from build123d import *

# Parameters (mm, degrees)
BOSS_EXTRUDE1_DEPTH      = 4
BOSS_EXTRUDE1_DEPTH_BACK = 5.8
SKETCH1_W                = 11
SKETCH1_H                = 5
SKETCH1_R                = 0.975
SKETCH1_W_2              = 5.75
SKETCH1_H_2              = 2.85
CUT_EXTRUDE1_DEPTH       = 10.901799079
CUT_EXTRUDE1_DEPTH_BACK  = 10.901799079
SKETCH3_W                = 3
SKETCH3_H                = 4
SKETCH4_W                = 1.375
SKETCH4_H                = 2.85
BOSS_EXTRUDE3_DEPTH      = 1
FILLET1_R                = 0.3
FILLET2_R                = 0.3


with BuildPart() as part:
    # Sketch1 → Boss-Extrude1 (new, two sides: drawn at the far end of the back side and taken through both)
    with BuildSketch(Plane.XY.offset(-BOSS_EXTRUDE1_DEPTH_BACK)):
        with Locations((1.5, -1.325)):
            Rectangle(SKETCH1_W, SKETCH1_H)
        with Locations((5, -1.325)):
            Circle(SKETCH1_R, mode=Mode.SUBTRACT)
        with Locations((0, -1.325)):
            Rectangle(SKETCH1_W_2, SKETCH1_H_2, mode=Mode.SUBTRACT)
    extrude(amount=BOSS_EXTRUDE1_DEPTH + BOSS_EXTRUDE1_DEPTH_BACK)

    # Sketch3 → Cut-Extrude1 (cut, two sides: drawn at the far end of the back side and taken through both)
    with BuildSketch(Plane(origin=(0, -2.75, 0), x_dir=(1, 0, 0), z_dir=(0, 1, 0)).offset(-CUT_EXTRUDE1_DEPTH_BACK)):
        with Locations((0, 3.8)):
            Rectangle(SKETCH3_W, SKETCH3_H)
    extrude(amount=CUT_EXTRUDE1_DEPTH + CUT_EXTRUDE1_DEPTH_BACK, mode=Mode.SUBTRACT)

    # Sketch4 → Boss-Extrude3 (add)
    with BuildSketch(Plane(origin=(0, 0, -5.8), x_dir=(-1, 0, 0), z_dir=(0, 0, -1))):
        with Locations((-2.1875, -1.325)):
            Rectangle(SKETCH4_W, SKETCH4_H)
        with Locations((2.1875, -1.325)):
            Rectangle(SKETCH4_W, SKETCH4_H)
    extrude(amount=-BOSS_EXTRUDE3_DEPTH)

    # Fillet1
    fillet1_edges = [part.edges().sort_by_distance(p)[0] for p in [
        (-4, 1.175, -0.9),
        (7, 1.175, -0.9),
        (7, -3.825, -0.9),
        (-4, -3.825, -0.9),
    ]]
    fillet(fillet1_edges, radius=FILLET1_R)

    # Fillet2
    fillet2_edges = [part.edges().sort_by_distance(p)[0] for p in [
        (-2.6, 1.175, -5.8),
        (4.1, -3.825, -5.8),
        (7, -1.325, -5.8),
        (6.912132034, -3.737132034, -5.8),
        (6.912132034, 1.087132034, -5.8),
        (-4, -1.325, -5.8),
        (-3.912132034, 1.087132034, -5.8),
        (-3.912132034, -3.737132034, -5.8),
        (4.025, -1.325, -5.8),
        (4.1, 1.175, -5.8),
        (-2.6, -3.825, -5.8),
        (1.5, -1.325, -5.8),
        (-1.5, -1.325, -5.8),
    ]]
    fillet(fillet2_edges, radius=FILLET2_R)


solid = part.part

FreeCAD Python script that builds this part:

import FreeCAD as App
import Part
import Sketcher


def edges_at(feature, points):
    """Names of the edges that pass closest to the given points."""
    edges = feature.Shape.Edges
    near = lambda p: min(range(len(edges)), key=lambda i: edges[i].distToShape(Part.Vertex(*p))[0])
    return sorted({f"Edge{near(p) + 1}" for p in points})

doc = App.newDocument("Part")
body = doc.addObject("PartDesign::Body", "Body")

sketch1 = body.newObject("Sketcher::SketchObject", "Sketch")
sketch1.AttachmentSupport = (doc.getObject("XY_Plane"), [""])
sketch1.MapMode = "FlatFace"
sketch1.addGeometry([
    Part.LineSegment(App.Vector(-4, 1.2, 0), App.Vector(-4, -3.8, 0)),
    Part.LineSegment(App.Vector(-4, -3.8, 0), App.Vector(7, -3.8, 0)),
    Part.LineSegment(App.Vector(7, -3.8, 0), App.Vector(7, 1.2, 0)),
    Part.LineSegment(App.Vector(7, 1.2, 0), App.Vector(-4, 1.2, 0)),
    Part.LineSegment(App.Vector(2.9, -2.8, 0), App.Vector(-2.9, -2.8, 0)),
    Part.LineSegment(App.Vector(-2.9, -2.8, 0), App.Vector(-2.9, 0.1, 0)),
    Part.LineSegment(App.Vector(-2.9, 0.1, 0), App.Vector(2.9, 0.1, 0)),
    Part.LineSegment(App.Vector(2.9, 0.1, 0), App.Vector(2.9, -2.8, 0)),
    Part.Circle(App.Vector(5, -1.3, 0), App.Vector(0, 0, 1), 1),
], False)
sketch1.addConstraint([
    Sketcher.Constraint("Coincident", 0, 2, 1, 1),
    Sketcher.Constraint("Coincident", 1, 2, 2, 1),
    Sketcher.Constraint("Coincident", 2, 2, 3, 1),
    Sketcher.Constraint("Coincident", 3, 2, 0, 1),
    Sketcher.Constraint("Coincident", 4, 2, 5, 1),
    Sketcher.Constraint("Coincident", 5, 2, 6, 1),
    Sketcher.Constraint("Coincident", 6, 2, 7, 1),
    Sketcher.Constraint("Coincident", 7, 2, 4, 1),
    Sketcher.Constraint("Vertical", 0),
    Sketcher.Constraint("Horizontal", 1),
    Sketcher.Constraint("Vertical", 2),
    Sketcher.Constraint("Horizontal", 3),
    Sketcher.Constraint("Horizontal", 4),
    Sketcher.Constraint("Vertical", 5),
    Sketcher.Constraint("Horizontal", 6),
    Sketcher.Constraint("Vertical", 7),
    Sketcher.Constraint("Diameter", 8, 1.95),
    Sketcher.Constraint("DistanceX", 1, 1, 1, 2, 11.0),
    Sketcher.Constraint("DistanceY", 0, 2, 0, 1, 5.0),
    Sketcher.Constraint("DistanceX", -1, 1, 8, 3, 5.0),
    Sketcher.Constraint("DistanceX", 0, 2, -1, 1, 4.0),
    Sketcher.Constraint("DistanceX", 4, 2, 4, 1, 5.75),
    Sketcher.Constraint("DistanceY", 5, 1, 5, 2, 2.85),
    Sketcher.Constraint("DistanceY", -1, 1, 5, 2, 0.1),
    Sketcher.Constraint("DistanceY", 0, 2, 8, 3, 2.5),
    Sketcher.Constraint("DistanceY", 8, 3, -1, 1, 1.325),
    Sketcher.Constraint("DistanceX", 4, 2, -1, 1, 2.875),
])
pad1 = body.newObject("PartDesign::Pad", "Pad")
pad1.Profile = sketch1
pad1.Type = "TwoLengths"
pad1.Length = 4
pad1.Length2 = 5.8

sketch2 = body.newObject("Sketcher::SketchObject", "Sketch001")
sketch2.AttachmentSupport = (doc.getObject("XZ_Plane"), [""])
sketch2.MapMode = "FlatFace"
sketch2.AttachmentOffset = App.Placement(App.Vector(0, 0, 2.75), App.Rotation())
sketch2.addGeometry([
    Part.LineSegment(App.Vector(-1.5, -5.8, 0), App.Vector(-1.5, -1.8, 0)),
    Part.LineSegment(App.Vector(-1.5, -1.8, 0), App.Vector(1.5, -1.8, 0)),
    Part.LineSegment(App.Vector(1.5, -1.8, 0), App.Vector(1.5, -5.8, 0)),
    Part.LineSegment(App.Vector(1.5, -5.8, 0), App.Vector(-1.5, -5.8, 0)),
], False)
sketch2.addConstraint([
    Sketcher.Constraint("Coincident", 0, 2, 1, 1),
    Sketcher.Constraint("Coincident", 1, 2, 2, 1),
    Sketcher.Constraint("Coincident", 2, 2, 3, 1),
    Sketcher.Constraint("Coincident", 3, 2, 0, 1),
    Sketcher.Constraint("Vertical", 0),
    Sketcher.Constraint("Horizontal", 1),
    Sketcher.Constraint("Vertical", 2),
    Sketcher.Constraint("Horizontal", 3),
    Sketcher.Constraint("DistanceX", 1, 1, 1, 2, 3.0),
    Sketcher.Constraint("DistanceY", 0, 1, 0, 2, 4.0),
    Sketcher.Constraint("DistanceX", 0, 2, -1, 1, 1.5),
    Sketcher.Constraint("DistanceY", 0, 2, -1, 1, 1.8),
])
pocket1 = body.newObject("PartDesign::Pocket", "Pocket")
pocket1.Profile = sketch2
pocket1.Type = "ThroughAll"
pocket1.Midplane = True

sketch3 = body.newObject("Sketcher::SketchObject", "Sketch002")
sketch3.AttachmentSupport = (doc.getObject("XY_Plane"), [""])
sketch3.MapMode = "FlatFace"
sketch3.AttachmentOffset = App.Placement(App.Vector(0, 0, -5.8), App.Rotation())
sketch3.addGeometry([
    Part.LineSegment(App.Vector(2.9, 0.1, 0), App.Vector(2.9, -2.8, 0)),
    Part.LineSegment(App.Vector(2.9, -2.8, 0), App.Vector(1.5, -2.8, 0)),
    Part.LineSegment(App.Vector(1.5, -2.8, 0), App.Vector(1.5, 0.1, 0)),
    Part.LineSegment(App.Vector(1.5, 0.1, 0), App.Vector(2.9, 0.1, 0)),
    Part.LineSegment(App.Vector(-1.5, 0.1, 0), App.Vector(-1.5, -2.8, 0)),
    Part.LineSegment(App.Vector(-1.5, -2.8, 0), App.Vector(-2.9, -2.8, 0)),
    Part.LineSegment(App.Vector(-2.9, -2.8, 0), App.Vector(-2.9, 0.1, 0)),
    Part.LineSegment(App.Vector(-2.9, 0.1, 0), App.Vector(-1.5, 0.1, 0)),
], False)
sketch3.addConstraint([
    Sketcher.Constraint("Coincident", 0, 2, 1, 1),
    Sketcher.Constraint("Coincident", 1, 2, 2, 1),
    Sketcher.Constraint("Coincident", 2, 2, 3, 1),
    Sketcher.Constraint("Coincident", 3, 2, 0, 1),
    Sketcher.Constraint("Coincident", 4, 2, 5, 1),
    Sketcher.Constraint("Coincident", 5, 2, 6, 1),
    Sketcher.Constraint("Coincident", 6, 2, 7, 1),
    Sketcher.Constraint("Coincident", 7, 2, 4, 1),
    Sketcher.Constraint("Vertical", 0),
    Sketcher.Constraint("Horizontal", 1),
    Sketcher.Constraint("Vertical", 2),
    Sketcher.Constraint("Horizontal", 3),
    Sketcher.Constraint("Vertical", 4),
    Sketcher.Constraint("Horizontal", 5),
    Sketcher.Constraint("Vertical", 6),
    Sketcher.Constraint("Horizontal", 7),
    Sketcher.Constraint("Symmetric", 1, 2, 4, 2, -2),
    Sketcher.Constraint("Symmetric", 3, 2, 6, 2, -2),
    Sketcher.Constraint("DistanceX", 4, 2, 1, 2, 3.0),
    Sketcher.Constraint("DistanceY", 0, 2, 0, 1, 2.85),
    Sketcher.Constraint("DistanceY", -1, 1, 2, 2, 0.1),
    Sketcher.Constraint("DistanceX", 1, 2, 1, 1, 1.375),
])
pad2 = body.newObject("PartDesign::Pad", "Pad001")
pad2.Profile = sketch3
pad2.Length = 1
doc.recompute()

fillet = body.newObject("PartDesign::Fillet", "Fillet")
fillet.Base = (pad2, edges_at(pad2, [
    (-4, 1.175, -0.9),
    (7, 1.175, -0.9),
    (7, -3.825, -0.9),
    (-4, -3.825, -0.9),
]))
fillet.Radius = 0.3
doc.recompute()

fillet2 = body.newObject("PartDesign::Fillet", "Fillet001")
fillet2.Base = (fillet, edges_at(fillet, [
    (-2.6, 1.175, -5.8),
    (4.1, -3.825, -5.8),
    (7, -1.325, -5.8),
    (6.912, -3.737, -5.8),
    (6.912, 1.087, -5.8),
    (-4, -1.325, -5.8),
    (-3.912, 1.087, -5.8),
    (-3.912, -3.737, -5.8),
    (4.025, -1.325, -5.8),
    (4.1, 1.175, -5.8),
    (-2.6, -3.825, -5.8),
    (1.5, -1.325, -5.8),
    (-1.5, -1.325, -5.8),
]))
fillet2.Radius = 0.3

doc.recompute()
